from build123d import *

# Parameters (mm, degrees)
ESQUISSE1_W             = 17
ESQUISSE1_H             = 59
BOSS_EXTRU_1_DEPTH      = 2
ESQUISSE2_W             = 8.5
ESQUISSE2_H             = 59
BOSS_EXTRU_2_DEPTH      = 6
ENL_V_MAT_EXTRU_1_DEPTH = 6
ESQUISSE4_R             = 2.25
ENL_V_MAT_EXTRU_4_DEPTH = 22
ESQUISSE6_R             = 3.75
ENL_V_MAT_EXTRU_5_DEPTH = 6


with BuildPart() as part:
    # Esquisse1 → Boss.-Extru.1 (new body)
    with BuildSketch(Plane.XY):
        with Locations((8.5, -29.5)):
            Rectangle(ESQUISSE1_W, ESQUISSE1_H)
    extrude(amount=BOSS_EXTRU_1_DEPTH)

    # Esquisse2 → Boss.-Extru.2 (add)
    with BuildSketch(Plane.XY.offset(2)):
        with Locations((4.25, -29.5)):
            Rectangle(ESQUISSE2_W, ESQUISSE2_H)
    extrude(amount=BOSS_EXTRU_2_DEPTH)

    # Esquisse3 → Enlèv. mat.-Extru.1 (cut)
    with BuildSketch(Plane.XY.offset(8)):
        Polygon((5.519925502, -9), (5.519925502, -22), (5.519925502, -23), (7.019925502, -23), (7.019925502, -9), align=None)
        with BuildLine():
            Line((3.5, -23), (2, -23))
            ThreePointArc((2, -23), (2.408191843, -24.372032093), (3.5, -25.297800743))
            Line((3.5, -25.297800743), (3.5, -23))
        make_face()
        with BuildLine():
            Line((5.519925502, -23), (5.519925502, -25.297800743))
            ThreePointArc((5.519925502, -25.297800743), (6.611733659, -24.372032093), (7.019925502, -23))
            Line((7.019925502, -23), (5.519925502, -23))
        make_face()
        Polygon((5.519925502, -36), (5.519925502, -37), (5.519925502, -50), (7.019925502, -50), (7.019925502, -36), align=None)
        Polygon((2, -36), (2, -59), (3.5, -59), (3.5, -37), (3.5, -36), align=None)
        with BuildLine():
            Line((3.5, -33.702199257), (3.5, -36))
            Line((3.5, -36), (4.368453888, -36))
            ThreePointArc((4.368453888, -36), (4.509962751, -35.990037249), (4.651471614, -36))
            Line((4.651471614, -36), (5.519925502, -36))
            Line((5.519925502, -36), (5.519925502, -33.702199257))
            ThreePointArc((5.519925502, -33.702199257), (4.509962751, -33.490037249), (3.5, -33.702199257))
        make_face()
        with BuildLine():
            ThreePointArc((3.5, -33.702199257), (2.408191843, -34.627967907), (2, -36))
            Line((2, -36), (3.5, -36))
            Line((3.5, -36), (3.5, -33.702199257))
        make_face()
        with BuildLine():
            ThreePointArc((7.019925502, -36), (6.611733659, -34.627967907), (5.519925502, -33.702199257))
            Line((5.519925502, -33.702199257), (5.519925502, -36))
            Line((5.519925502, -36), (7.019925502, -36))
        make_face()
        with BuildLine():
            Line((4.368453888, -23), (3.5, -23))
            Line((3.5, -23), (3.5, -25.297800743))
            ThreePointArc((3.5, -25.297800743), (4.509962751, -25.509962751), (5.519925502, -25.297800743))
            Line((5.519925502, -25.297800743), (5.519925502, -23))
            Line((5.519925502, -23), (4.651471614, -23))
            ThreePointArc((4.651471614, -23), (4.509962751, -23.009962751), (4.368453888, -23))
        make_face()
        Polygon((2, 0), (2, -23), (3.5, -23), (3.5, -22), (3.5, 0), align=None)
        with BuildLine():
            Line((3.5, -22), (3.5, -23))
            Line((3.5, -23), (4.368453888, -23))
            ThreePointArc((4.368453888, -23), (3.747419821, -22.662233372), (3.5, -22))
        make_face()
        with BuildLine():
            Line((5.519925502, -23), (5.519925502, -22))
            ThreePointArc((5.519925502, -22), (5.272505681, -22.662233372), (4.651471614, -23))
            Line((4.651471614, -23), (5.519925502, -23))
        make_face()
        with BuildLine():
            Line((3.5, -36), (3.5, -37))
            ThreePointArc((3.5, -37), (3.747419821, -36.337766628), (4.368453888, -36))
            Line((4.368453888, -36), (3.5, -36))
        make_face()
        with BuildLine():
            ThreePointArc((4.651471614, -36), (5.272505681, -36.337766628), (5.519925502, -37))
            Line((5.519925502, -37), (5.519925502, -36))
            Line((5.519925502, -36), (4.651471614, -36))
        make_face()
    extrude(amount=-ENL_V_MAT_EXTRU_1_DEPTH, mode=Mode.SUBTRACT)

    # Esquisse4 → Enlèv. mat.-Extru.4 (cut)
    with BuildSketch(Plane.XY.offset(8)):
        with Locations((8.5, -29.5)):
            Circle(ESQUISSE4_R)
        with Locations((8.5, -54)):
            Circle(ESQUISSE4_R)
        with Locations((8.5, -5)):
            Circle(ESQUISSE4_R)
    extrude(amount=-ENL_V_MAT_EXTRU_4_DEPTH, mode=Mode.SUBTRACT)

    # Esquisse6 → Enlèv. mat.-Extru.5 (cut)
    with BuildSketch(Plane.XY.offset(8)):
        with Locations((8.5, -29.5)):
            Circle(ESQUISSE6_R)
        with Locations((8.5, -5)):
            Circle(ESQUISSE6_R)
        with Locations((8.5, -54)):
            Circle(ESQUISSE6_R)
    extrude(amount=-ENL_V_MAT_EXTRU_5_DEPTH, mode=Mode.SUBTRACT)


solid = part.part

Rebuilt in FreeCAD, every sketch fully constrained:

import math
import FreeCAD as App
import Part
import Sketcher
from FreeCAD import Vector
Q = App.Units.Quantity

doc = App.newDocument("Part")
body = doc.addObject("PartDesign::Body", "Body")

# Sketch on XY plane
sketch1 = doc.addObject("Sketcher::SketchObject", "Sketch")
body.addObject(sketch1)
sketch1.AttachmentSupport = (doc.XY_Plane, [""])
sketch1.MapMode = "FlatFace"
sketch1.addGeometry([
    Part.LineSegment(Vector(0, 0, 0), Vector(0, -59, 0)),
    Part.LineSegment(Vector(0, -59, 0), Vector(17, -59, 0)),
    Part.LineSegment(Vector(17, -59, 0), Vector(17, 0, 0)),
    Part.LineSegment(Vector(17, 0, 0), Vector(0, 0, 0)),
], False)
sketch1.addConstraint([
    Sketcher.Constraint("Coincident", 0, 2, 1, 1),
    Sketcher.Constraint("Coincident", 1, 2, 2, 1),
    Sketcher.Constraint("Coincident", 2, 2, 3, 1),
    Sketcher.Constraint("Coincident", 3, 2, 0, 1),
    Sketcher.Constraint("Vertical", 0),
    Sketcher.Constraint("Horizontal", 1),
    Sketcher.Constraint("Vertical", 2),
    Sketcher.Constraint("Horizontal", 3),
    Sketcher.Constraint("Coincident", 3, 2, -1, 1),
    Sketcher.Constraint("DistanceX", 1, 1, 1, 2, Q("17 mm")),
    Sketcher.Constraint("DistanceY", 0, 2, 0, 1, Q("59 mm")),
])
pad1 = doc.addObject("PartDesign::Pad", "Pad")
body.addObject(pad1)
pad1.Profile = sketch1
pad1.Length = 2

# Sketch on XY plane
sketch2 = doc.addObject("Sketcher::SketchObject", "Sketch001")
body.addObject(sketch2)
sketch2.AttachmentSupport = (doc.XY_Plane, [""])
sketch2.MapMode = "FlatFace"
sketch2.AttachmentOffset = App.Placement(Vector(0, 0, 2), App.Rotation())
sketch2.addGeometry([
    Part.LineSegment(Vector(0, 0, 0), Vector(0, -59, 0)),
    Part.LineSegment(Vector(0, -59, 0), Vector(8.5, -59, 0)),
    Part.LineSegment(Vector(8.5, -59, 0), Vector(8.5, 0, 0)),
    Part.LineSegment(Vector(8.5, 0, 0), Vector(0, 0, 0)),
], False)
sketch2.addConstraint([
    Sketcher.Constraint("Coincident", 0, 2, 1, 1),
    Sketcher.Constraint("Coincident", 1, 2, 2, 1),
    Sketcher.Constraint("Coincident", 2, 2, 3, 1),
    Sketcher.Constraint("Coincident", 3, 2, 0, 1),
    Sketcher.Constraint("Vertical", 0),
    Sketcher.Constraint("Horizontal", 1),
    Sketcher.Constraint("Vertical", 2),
    Sketcher.Constraint("Horizontal", 3),
    Sketcher.Constraint("Coincident", 3, 2, -1, 1),
    Sketcher.Constraint("DistanceY", 0, 2, 0, 1, Q("59 mm")),
    Sketcher.Constraint("DistanceX", 1, 1, 1, 2, Q("8.5 mm")),
])
pad2 = doc.addObject("PartDesign::Pad", "Pad001")
body.addObject(pad2)
pad2.Profile = sketch2
pad2.Length = 6

# Sketch on XY plane
sketch3 = doc.addObject("Sketcher::SketchObject", "Sketch002")
body.addObject(sketch3)
sketch3.AttachmentSupport = (doc.XY_Plane, [""])
sketch3.MapMode = "FlatFace"
sketch3.AttachmentOffset = App.Placement(Vector(0, 0, 8), App.Rotation())
sketch3.addGeometry([
    Part.LineSegment(Vector(5.519926, -9, 0), Vector(5.519926, -22, 0)),  # 0
    Part.ArcOfCircle(Part.Circle(Vector(4.509963, -22, 0), Vector(0, 0, 1), 1.009963), math.radians(-81.945618), math.radians(0)),  # 1
    Part.ArcOfCircle(Part.Circle(Vector(4.509963, -22, 0), Vector(0, 0, 1), 1.009963), math.radians(-98.054382), math.radians(-81.945618)),  # 2
    Part.ArcOfCircle(Part.Circle(Vector(4.509963, -22, 0), Vector(0, 0, 1), 1.009963), math.radians(180), math.radians(261.945618)),  # 3
    Part.LineSegment(Vector(3.5, -22, 0), Vector(3.5, 0, 0)),  # 4
    Part.LineSegment(Vector(3.5, 0, 0), Vector(2, 0, 0)),  # 5
    Part.LineSegment(Vector(2, 0, 0), Vector(2, -23, 0)),  # 6
    Part.ArcOfCircle(Part.Circle(Vector(4.509963, -23, 0), Vector(0, 0, 1), 2.509963), math.radians(180), math.radians(246.272853)),  # 7
    Part.ArcOfCircle(Part.Circle(Vector(4.509963, -23, 0), Vector(0, 0, 1), 2.509963), math.radians(-113.727147), math.radians(-66.272853)),  # 8
    Part.ArcOfCircle(Part.Circle(Vector(4.509963, -23, 0), Vector(0, 0, 1), 2.509963), math.radians(-66.272853), math.radians(0)),  # 9
    Part.LineSegment(Vector(7.019926, -23, 0), Vector(7.019926, -9, 0)),  # 10
    Part.LineSegment(Vector(7.019926, -9, 0), Vector(5.519926, -9, 0)),  # 11
    Part.LineSegment(Vector(5.519926, -37, 0), Vector(5.519926, -50, 0)),  # 12
    Part.LineSegment(Vector(5.519926, -50, 0), Vector(7.019926, -50, 0)),  # 13
    Part.LineSegment(Vector(7.019926, -50, 0), Vector(7.019926, -36, 0)),  # 14
    Part.ArcOfCircle(Part.Circle(Vector(4.509963, -36, 0), Vector(0, 0, 1), 2.509963), math.radians(0), math.radians(66.272853)),  # 15
    Part.ArcOfCircle(Part.Circle(Vector(4.509963, -36, 0), Vector(0, 0, 1), 2.509963), math.radians(66.272853), math.radians(113.727147)),  # 16
    Part.ArcOfCircle(Part.Circle(Vector(4.509963, -36, 0), Vector(0, 0, 1), 2.509963), math.radians(113.727147), math.radians(180)),  # 17
    Part.LineSegment(Vector(2, -36, 0), Vector(2, -59, 0)),  # 18
    Part.LineSegment(Vector(2, -59, 0), Vector(3.5, -59, 0)),  # 19
    Part.LineSegment(Vector(3.5, -59, 0), Vector(3.5, -37, 0)),  # 20
    Part.ArcOfCircle(Part.Circle(Vector(4.509963, -37, 0), Vector(0, 0, 1), 1.009963), math.radians(98.054382), math.radians(180)),  # 21
    Part.ArcOfCircle(Part.Circle(Vector(4.509963, -37, 0), Vector(0, 0, 1), 1.009963), math.radians(81.945618), math.radians(98.054382)),  # 22
    Part.ArcOfCircle(Part.Circle(Vector(4.509963, -37, 0), Vector(0, 0, 1), 1.009963), math.radians(0), math.radians(81.945618)),  # 23
], False)
sketch3.addConstraint([
    Sketcher.Constraint("Tangent", 0, 2, 1, 2),
    Sketcher.Constraint("Tangent", 1, 1, 2, 2),
    Sketcher.Constraint("Tangent", 2, 1, 3, 2),
    Sketcher.Constraint("Tangent", 3, 1, 4, 1),
    Sketcher.Constraint("Coincident", 4, 2, 5, 1),
    Sketcher.Constraint("Coincident", 5, 2, 6, 1),
    Sketcher.Constraint("Tangent", 6, 2, 7, 1),
    Sketcher.Constraint("Tangent", 7, 2, 8, 1),
    Sketcher.Constraint("Tangent", 8, 2, 9, 1),
    Sketcher.Constraint("Tangent", 9, 2, 10, 1),
    Sketcher.Constraint("Coincident", 10, 2, 11, 1),
    Sketcher.Constraint("Coincident", 11, 2, 0, 1),
    Sketcher.Constraint("Coincident", 12, 2, 13, 1),
    Sketcher.Constraint("Coincident", 13, 2, 14, 1),
    Sketcher.Constraint("Tangent", 14, 2, 15, 1),
    Sketcher.Constraint("Tangent", 15, 2, 16, 1),
    Sketcher.Constraint("Tangent", 16, 2, 17, 1),
    Sketcher.Constraint("Tangent", 17, 2, 18, 1),
    Sketcher.Constraint("Coincident", 18, 2, 19, 1),
    Sketcher.Constraint("Coincident", 19, 2, 20, 1),
    Sketcher.Constraint("Tangent", 20, 2, 21, 2),
    Sketcher.Constraint("Tangent", 21, 1, 22, 2),
    Sketcher.Constraint("Tangent", 22, 1, 23, 2),
    Sketcher.Constraint("Tangent", 23, 1, 12, 1),
    Sketcher.Constraint("Vertical", 0),
    Sketcher.Constraint("Vertical", 4),
    Sketcher.Constraint("Horizontal", 5),
    Sketcher.Constraint("Vertical", 6),
    Sketcher.Constraint("Vertical", 10),
    Sketcher.Constraint("Horizontal", 11),
    Sketcher.Constraint("Vertical", 12),
    Sketcher.Constraint("Horizontal", 13),
    Sketcher.Constraint("Vertical", 14),
    Sketcher.Constraint("Vertical", 18),
    Sketcher.Constraint("Horizontal", 19),
    Sketcher.Constraint("Vertical", 20),
    Sketcher.Constraint("Coincident", 3, 3, 1, 3),
    Sketcher.Constraint("Coincident", 9, 3, 7, 3),
    Sketcher.Constraint("Coincident", 17, 3, 15, 3),
    Sketcher.Constraint("Coincident", 23, 3, 21, 3),
    Sketcher.Constraint("Equal", 9, 15),
    Sketcher.Constraint("Equal", 3, 21),
    Sketcher.Constraint("PointOnObject", 4, 2, -1),
    Sketcher.Constraint("Horizontal", 9, 3, 1, 1),
    Sketcher.Constraint("Horizontal", 1, 1, 2, 1),
    Sketcher.Constraint("Horizontal", 7, 2, 8, 2),
    Sketcher.Constraint("Horizontal", 15, 2, 16, 2),
    Sketcher.Constraint("Horizontal", 17, 2, 21, 1),
    Sketcher.Constraint("Horizontal", 21, 1, 22, 1),
    Sketcher.Constraint("Vertical", 3, 3, 7, 3),
    Sketcher.Constraint("Vertical", 9, 3, 15, 3),
    Sketcher.Constraint("Vertical", 17, 3, 21, 3),
    Sketcher.Constraint("Vertical", 4, 2, 7, 2),
    Sketcher.Constraint("Vertical", 12, 2, 15, 2),
    Sketcher.Constraint("Vertical", 2, 1, 21, 1),
    Sketcher.Constraint("Equal", 0, 12),
    Sketcher.Constraint("Equal", 6, 18),
    Sketcher.Constraint("DistanceY", 0, 2, 0, 1, Q("13 mm")),
    Sketcher.Constraint("DistanceY", 4, 1, 4, 2, Q("22 mm")),
    Sketcher.Constraint("DistanceY", 6, 2, 6, 1, Q("23 mm")),
    Sketcher.Constraint("DistanceX", 5, 2, 5, 1, Q("1.5 mm")),
    Sketcher.Constraint("DistanceY", 15, 3, -1, 1, Q("36 mm")),
    Sketcher.Constraint("DistanceX", -1, 1, 5, 2, Q("2 mm")),
    Sketcher.Constraint("Radius", 1, Q("1.009963 mm")),
])
pocket1 = doc.addObject("PartDesign::Pocket", "Pocket")
body.addObject(pocket1)
pocket1.Profile = sketch3
pocket1.Length = 6

# Sketch on XY plane
sketch4 = doc.addObject("Sketcher::SketchObject", "Sketch003")
body.addObject(sketch4)
sketch4.AttachmentSupport = (doc.XY_Plane, [""])
sketch4.MapMode = "FlatFace"
sketch4.AttachmentOffset = App.Placement(Vector(0, 0, 8), App.Rotation())
sketch4.addGeometry([
    Part.Circle(Vector(8.5, -29.5, 0), Vector(0, 0, 1), 2.25),
    Part.Circle(Vector(8.5, -54, 0), Vector(0, 0, 1), 2.25),
    Part.Circle(Vector(8.5, -5, 0), Vector(0, 0, 1), 2.25),
], False)
sketch4.addConstraint([
    Sketcher.Constraint("Equal", 0, 1),
    Sketcher.Constraint("Equal", 1, 2),
    Sketcher.Constraint("Vertical", 0, 3, 1, 3),
    Sketcher.Constraint("Vertical", 1, 3, 2, 3),
    Sketcher.Constraint("Diameter", 0, Q("4.5 mm")),
    Sketcher.Constraint("DistanceY", 1, 3, -1, 1, Q("54 mm")),
    Sketcher.Constraint("DistanceY", 2, 3, -1, 1, Q("5 mm")),
    Sketcher.Constraint("DistanceX", -1, 1, 0, 3, Q("8.5 mm")),
    Sketcher.Constraint("DistanceY", 0, 3, -1, 1, Q("29.5 mm")),
])
pocket2 = doc.addObject("PartDesign::Pocket", "Pocket001")
body.addObject(pocket2)
pocket2.Profile = sketch4
pocket2.Length = 22

# Sketch on XY plane
sketch5 = doc.addObject("Sketcher::SketchObject", "Sketch004")
body.addObject(sketch5)
sketch5.AttachmentSupport = (doc.XY_Plane, [""])
sketch5.MapMode = "FlatFace"
sketch5.AttachmentOffset = App.Placement(Vector(0, 0, 8), App.Rotation())
sketch5.addGeometry([
    Part.Circle(Vector(8.5, -29.5, 0), Vector(0, 0, 1), 3.75),
    Part.Circle(Vector(8.5, -5, 0), Vector(0, 0, 1), 3.75),
    Part.Circle(Vector(8.5, -54, 0), Vector(0, 0, 1), 3.75),
], False)
sketch5.addConstraint([
    Sketcher.Constraint("Equal", 0, 1),
    Sketcher.Constraint("Equal", 1, 2),
    Sketcher.Constraint("Vertical", 0, 3, 1, 3),
    Sketcher.Constraint("Vertical", 1, 3, 2, 3),
    Sketcher.Constraint("Diameter", 0, Q("7.5 mm")),
    Sketcher.Constraint("DistanceY", 1, 3, -1, 1, Q("5 mm")),
    Sketcher.Constraint("DistanceY", 2, 3, -1, 1, Q("54 mm")),
    Sketcher.Constraint("DistanceX", -1, 1, 0, 3, Q("8.5 mm")),
    Sketcher.Constraint("DistanceY", 0, 3, -1, 1, Q("29.5 mm")),
])
pocket3 = doc.addObject("PartDesign::Pocket", "Pocket002")
body.addObject(pocket3)
pocket3.Profile = sketch5
pocket3.Length = 6

doc.recompute()
